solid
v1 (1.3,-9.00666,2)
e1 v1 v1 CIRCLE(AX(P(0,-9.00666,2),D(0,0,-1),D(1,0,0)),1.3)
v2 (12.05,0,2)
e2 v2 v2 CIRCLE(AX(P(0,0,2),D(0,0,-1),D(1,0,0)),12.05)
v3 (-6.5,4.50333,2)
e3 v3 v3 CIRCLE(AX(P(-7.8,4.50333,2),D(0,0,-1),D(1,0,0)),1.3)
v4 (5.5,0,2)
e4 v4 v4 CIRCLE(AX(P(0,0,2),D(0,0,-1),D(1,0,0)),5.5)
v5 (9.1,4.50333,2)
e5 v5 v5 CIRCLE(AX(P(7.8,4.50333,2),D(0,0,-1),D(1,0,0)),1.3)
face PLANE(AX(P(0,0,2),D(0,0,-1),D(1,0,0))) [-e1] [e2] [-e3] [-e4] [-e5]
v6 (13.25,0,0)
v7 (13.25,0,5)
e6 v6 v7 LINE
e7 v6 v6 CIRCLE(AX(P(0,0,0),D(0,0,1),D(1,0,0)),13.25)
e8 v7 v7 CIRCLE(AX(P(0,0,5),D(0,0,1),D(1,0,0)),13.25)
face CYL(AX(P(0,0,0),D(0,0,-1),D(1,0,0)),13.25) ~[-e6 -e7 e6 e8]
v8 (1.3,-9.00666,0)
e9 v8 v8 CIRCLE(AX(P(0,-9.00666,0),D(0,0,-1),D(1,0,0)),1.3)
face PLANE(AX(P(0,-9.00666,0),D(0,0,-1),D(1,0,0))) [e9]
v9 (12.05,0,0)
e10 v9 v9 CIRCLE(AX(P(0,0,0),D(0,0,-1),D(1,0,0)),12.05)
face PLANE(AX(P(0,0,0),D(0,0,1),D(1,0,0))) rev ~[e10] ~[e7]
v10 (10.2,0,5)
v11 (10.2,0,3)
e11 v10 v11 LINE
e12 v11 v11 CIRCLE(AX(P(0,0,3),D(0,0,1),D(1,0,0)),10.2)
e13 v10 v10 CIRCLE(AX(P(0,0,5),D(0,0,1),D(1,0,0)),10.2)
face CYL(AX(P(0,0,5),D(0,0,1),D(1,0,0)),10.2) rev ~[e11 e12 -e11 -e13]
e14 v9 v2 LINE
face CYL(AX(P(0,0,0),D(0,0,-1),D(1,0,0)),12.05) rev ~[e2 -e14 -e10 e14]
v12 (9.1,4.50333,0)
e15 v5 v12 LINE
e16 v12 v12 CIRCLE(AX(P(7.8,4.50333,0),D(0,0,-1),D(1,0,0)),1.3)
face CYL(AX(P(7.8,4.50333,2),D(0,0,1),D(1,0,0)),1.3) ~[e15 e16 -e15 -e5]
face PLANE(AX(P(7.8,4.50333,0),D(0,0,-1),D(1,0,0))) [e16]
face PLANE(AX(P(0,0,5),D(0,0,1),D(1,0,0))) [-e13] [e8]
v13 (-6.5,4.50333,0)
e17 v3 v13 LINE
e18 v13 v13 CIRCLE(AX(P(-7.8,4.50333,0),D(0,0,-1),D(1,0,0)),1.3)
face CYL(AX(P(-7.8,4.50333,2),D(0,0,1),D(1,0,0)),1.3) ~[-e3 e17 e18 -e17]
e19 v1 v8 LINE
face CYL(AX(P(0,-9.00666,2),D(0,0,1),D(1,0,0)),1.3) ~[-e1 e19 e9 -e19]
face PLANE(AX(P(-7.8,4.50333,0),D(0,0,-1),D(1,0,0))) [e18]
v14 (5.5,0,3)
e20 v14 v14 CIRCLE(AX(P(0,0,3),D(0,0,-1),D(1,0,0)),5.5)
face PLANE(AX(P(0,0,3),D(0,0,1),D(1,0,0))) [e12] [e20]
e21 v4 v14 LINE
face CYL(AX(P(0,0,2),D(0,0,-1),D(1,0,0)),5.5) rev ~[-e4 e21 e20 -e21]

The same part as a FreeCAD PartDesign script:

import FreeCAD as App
import Part
import Sketcher
Q = App.Units.Quantity

doc = App.newDocument("Part")
params = doc.addObject("Spreadsheet::Sheet", "Params")
for row, (alias, value) in enumerate([
    ("sketch1_diameter", "26.5 mm"),
    ("pad1_length", "5 mm"),
    ("sketch2_diameter", "20.4 mm"),
    ("pocket1_length", "2 mm"),
    ("sketch3_diameter", "24.1 mm"),
    ("pocket2_length", "2 mm"),
    ("sketch4_diameter", "11 mm"),
    ("pocket3_length", "5 mm"),
    ("sketch5_diameter", "2.6 mm"),
    ("pad2_length", "2 mm"),
], start=1):
    params.set(f"A{row}", alias)
    params.set(f"B{row}", "=" + value)
    params.setAlias(f"B{row}", alias)

body = doc.addObject("PartDesign::Body", "Body")

# Sketch on XY plane
sketch1 = doc.addObject("Sketcher::SketchObject", "Sketch")
body.addObject(sketch1)
sketch1.AttachmentSupport = (doc.XY_Plane, [""])
sketch1.MapMode = "FlatFace"
sketch1.addGeometry(Part.Circle(App.Vector(0, 0, 0), App.Vector(0, 0, 1), 13.25), False)
sketch1.addConstraint([
    Sketcher.Constraint("Coincident", 0, 3, -1, 1),
    Sketcher.Constraint("Diameter", 0, Q("26.5 mm")),
])
sketch1.setExpression("Constraints[1]", "Params.sketch1_diameter")
pad1 = doc.addObject("PartDesign::Pad", "Pad")
body.addObject(pad1)
pad1.Profile = sketch1
pad1.setExpression("Length", "Params.pad1_length")

# Sketch on XY plane
sketch2 = doc.addObject("Sketcher::SketchObject", "Sketch001")
body.addObject(sketch2)
sketch2.AttachmentSupport = (doc.XY_Plane, [""])
sketch2.MapMode = "FlatFace"
sketch2.AttachmentOffset = App.Placement(App.Vector(0, 0, 5), App.Rotation())
sketch2.addGeometry(Part.Circle(App.Vector(0, 0, 0), App.Vector(0, 0, 1), 10.2), False)
sketch2.addConstraint([
    Sketcher.Constraint("Coincident", 0, 3, -1, 1),
    Sketcher.Constraint("Diameter", 0, Q("20.4 mm")),
])
sketch2.setExpression("Constraints[1]", "Params.sketch2_diameter")
pocket1 = doc.addObject("PartDesign::Pocket", "Pocket")
body.addObject(pocket1)
pocket1.Profile = sketch2
pocket1.setExpression("Length", "Params.pocket1_length")

# Sketch on XY plane
sketch3 = doc.addObject("Sketcher::SketchObject", "Sketch002")
body.addObject(sketch3)
sketch3.AttachmentSupport = (doc.XY_Plane, [""])
sketch3.MapMode = "FlatFace"
sketch3.addGeometry(Part.Circle(App.Vector(0, 0, 0), App.Vector(0, 0, 1), 12.05), False)
sketch3.addConstraint([
    Sketcher.Constraint("Coincident", 0, 3, -1, 1),
    Sketcher.Constraint("Diameter", 0, Q("24.1 mm")),
])
sketch3.setExpression("Constraints[1]", "Params.sketch3_diameter")
pocket2 = doc.addObject("PartDesign::Pocket", "Pocket001")
body.addObject(pocket2)
pocket2.Profile = sketch3
pocket2.setExpression("Length", "Params.pocket2_length")
pocket2.Reversed = True

# Sketch on XY plane
sketch4 = doc.addObject("Sketcher::SketchObject", "Sketch003")
body.addObject(sketch4)
sketch4.AttachmentSupport = (doc.XY_Plane, [""])
sketch4.MapMode = "FlatFace"
sketch4.AttachmentOffset = App.Placement(App.Vector(0, 0, 2), App.Rotation())
sketch4.addGeometry(Part.Circle(App.Vector(0, 0, 0), App.Vector(0, 0, 1), 5.5), False)
sketch4.addConstraint([
    Sketcher.Constraint("Coincident", 0, 3, -1, 1),
    Sketcher.Constraint("Diameter", 0, Q("11 mm")),
])
sketch4.setExpression("Constraints[1]", "Params.sketch4_diameter")
pocket3 = doc.addObject("PartDesign::Pocket", "Pocket002")
body.addObject(pocket3)
pocket3.Profile = sketch4
pocket3.setExpression("Length", "Params.pocket3_length")
pocket3.Reversed = True

# Sketch on XY plane
sketch5 = doc.addObject("Sketcher::SketchObject", "Sketch004")
body.addObject(sketch5)
sketch5.AttachmentSupport = (doc.XY_Plane, [""])
sketch5.MapMode = "FlatFace"
sketch5.AttachmentOffset = App.Placement(App.Vector(0, 0, 2), App.Rotation())
sketch5.addGeometry([
    Part.Circle(App.Vector(0, -9.00666, 0), App.Vector(0, 0, 1), 1.3),
    Part.Circle(App.Vector(7.8, 4.50333, 0), App.Vector(0, 0, 1), 1.3),
    Part.Circle(App.Vector(-7.8, 4.50333, 0), App.Vector(0, 0, 1), 1.3),
], False)
sketch5.addConstraint([
    Sketcher.Constraint("Equal", 0, 1),
    Sketcher.Constraint("Equal", 1, 2),
    Sketcher.Constraint("Symmetric", 1, 3, 2, 3, -2),
    Sketcher.Constraint("PointOnObject", 0, 3, -2),
    Sketcher.Constraint("Diameter", 0, Q("2.6 mm")),
    Sketcher.Constraint("DistanceX", -1, 1, 1, 3, Q("7.8 mm")),
    Sketcher.Constraint("DistanceY", 0, 3, -1, 1, Q("9.00666 mm")),
    Sketcher.Constraint("DistanceY", -1, 1, 1, 3, Q("4.50333 mm")),
])
sketch5.setExpression("Constraints[4]", "Params.sketch5_diameter")
pad2 = doc.addObject("PartDesign::Pad", "Pad001")
body.addObject(pad2)
pad2.Profile = sketch5
pad2.setExpression("Length", "Params.pad2_length")
pad2.Reversed = True

doc.recompute()
